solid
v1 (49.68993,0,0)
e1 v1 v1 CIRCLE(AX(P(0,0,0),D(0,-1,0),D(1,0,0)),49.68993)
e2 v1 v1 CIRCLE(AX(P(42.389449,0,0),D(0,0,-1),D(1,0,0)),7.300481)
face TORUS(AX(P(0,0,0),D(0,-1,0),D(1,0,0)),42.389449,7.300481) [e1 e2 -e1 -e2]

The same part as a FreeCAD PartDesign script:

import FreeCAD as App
import Part
import Sketcher
from FreeCAD import Vector
Q = App.Units.Quantity

doc = App.newDocument("Part")
body = doc.addObject("PartDesign::Body", "Body")

# Sketch on XY plane
sketch1 = body.newObject("Sketcher::SketchObject", "Sketch")
sketch1.AttachmentSupport = (doc.getObject("XY_Plane"), [""])
sketch1.MapMode = "FlatFace"
sketch1.addGeometry(Part.Circle(Vector(42.389449, 0, 0), Vector(0, 0, 1), 7.300481), False)
sketch1.addConstraint([
    Sketcher.Constraint("PointOnObject", 0, 3, -1),
    Sketcher.Constraint("Diameter", 0, Q("14.600962 mm")),
    Sketcher.Constraint("DistanceX", -1, 1, 0, 3, Q("42.389449 mm")),
])

# Sketch on XZ plane
sketch2 = body.newObject("Sketcher::SketchObject", "Sketch001")
sketch2.AttachmentSupport = (doc.getObject("XZ_Plane"), [""])
sketch2.MapMode = "FlatFace"
sketch2.addGeometry(Part.Circle(Vector(0, 0, 0), Vector(0, 0, 1), 42.389449), False)
sketch2.addConstraint([
    Sketcher.Constraint("Coincident", 0, 3, -1, 1),
    Sketcher.Constraint("Diameter", 0, Q("84.778898 mm")),
])
doc.recompute()

additivepipe = body.newObject("PartDesign::AdditivePipe", "AdditivePipe")
additivepipe.Profile = sketch1
additivepipe.Spine = (sketch2, ["Edge1"])

doc.recompute()
